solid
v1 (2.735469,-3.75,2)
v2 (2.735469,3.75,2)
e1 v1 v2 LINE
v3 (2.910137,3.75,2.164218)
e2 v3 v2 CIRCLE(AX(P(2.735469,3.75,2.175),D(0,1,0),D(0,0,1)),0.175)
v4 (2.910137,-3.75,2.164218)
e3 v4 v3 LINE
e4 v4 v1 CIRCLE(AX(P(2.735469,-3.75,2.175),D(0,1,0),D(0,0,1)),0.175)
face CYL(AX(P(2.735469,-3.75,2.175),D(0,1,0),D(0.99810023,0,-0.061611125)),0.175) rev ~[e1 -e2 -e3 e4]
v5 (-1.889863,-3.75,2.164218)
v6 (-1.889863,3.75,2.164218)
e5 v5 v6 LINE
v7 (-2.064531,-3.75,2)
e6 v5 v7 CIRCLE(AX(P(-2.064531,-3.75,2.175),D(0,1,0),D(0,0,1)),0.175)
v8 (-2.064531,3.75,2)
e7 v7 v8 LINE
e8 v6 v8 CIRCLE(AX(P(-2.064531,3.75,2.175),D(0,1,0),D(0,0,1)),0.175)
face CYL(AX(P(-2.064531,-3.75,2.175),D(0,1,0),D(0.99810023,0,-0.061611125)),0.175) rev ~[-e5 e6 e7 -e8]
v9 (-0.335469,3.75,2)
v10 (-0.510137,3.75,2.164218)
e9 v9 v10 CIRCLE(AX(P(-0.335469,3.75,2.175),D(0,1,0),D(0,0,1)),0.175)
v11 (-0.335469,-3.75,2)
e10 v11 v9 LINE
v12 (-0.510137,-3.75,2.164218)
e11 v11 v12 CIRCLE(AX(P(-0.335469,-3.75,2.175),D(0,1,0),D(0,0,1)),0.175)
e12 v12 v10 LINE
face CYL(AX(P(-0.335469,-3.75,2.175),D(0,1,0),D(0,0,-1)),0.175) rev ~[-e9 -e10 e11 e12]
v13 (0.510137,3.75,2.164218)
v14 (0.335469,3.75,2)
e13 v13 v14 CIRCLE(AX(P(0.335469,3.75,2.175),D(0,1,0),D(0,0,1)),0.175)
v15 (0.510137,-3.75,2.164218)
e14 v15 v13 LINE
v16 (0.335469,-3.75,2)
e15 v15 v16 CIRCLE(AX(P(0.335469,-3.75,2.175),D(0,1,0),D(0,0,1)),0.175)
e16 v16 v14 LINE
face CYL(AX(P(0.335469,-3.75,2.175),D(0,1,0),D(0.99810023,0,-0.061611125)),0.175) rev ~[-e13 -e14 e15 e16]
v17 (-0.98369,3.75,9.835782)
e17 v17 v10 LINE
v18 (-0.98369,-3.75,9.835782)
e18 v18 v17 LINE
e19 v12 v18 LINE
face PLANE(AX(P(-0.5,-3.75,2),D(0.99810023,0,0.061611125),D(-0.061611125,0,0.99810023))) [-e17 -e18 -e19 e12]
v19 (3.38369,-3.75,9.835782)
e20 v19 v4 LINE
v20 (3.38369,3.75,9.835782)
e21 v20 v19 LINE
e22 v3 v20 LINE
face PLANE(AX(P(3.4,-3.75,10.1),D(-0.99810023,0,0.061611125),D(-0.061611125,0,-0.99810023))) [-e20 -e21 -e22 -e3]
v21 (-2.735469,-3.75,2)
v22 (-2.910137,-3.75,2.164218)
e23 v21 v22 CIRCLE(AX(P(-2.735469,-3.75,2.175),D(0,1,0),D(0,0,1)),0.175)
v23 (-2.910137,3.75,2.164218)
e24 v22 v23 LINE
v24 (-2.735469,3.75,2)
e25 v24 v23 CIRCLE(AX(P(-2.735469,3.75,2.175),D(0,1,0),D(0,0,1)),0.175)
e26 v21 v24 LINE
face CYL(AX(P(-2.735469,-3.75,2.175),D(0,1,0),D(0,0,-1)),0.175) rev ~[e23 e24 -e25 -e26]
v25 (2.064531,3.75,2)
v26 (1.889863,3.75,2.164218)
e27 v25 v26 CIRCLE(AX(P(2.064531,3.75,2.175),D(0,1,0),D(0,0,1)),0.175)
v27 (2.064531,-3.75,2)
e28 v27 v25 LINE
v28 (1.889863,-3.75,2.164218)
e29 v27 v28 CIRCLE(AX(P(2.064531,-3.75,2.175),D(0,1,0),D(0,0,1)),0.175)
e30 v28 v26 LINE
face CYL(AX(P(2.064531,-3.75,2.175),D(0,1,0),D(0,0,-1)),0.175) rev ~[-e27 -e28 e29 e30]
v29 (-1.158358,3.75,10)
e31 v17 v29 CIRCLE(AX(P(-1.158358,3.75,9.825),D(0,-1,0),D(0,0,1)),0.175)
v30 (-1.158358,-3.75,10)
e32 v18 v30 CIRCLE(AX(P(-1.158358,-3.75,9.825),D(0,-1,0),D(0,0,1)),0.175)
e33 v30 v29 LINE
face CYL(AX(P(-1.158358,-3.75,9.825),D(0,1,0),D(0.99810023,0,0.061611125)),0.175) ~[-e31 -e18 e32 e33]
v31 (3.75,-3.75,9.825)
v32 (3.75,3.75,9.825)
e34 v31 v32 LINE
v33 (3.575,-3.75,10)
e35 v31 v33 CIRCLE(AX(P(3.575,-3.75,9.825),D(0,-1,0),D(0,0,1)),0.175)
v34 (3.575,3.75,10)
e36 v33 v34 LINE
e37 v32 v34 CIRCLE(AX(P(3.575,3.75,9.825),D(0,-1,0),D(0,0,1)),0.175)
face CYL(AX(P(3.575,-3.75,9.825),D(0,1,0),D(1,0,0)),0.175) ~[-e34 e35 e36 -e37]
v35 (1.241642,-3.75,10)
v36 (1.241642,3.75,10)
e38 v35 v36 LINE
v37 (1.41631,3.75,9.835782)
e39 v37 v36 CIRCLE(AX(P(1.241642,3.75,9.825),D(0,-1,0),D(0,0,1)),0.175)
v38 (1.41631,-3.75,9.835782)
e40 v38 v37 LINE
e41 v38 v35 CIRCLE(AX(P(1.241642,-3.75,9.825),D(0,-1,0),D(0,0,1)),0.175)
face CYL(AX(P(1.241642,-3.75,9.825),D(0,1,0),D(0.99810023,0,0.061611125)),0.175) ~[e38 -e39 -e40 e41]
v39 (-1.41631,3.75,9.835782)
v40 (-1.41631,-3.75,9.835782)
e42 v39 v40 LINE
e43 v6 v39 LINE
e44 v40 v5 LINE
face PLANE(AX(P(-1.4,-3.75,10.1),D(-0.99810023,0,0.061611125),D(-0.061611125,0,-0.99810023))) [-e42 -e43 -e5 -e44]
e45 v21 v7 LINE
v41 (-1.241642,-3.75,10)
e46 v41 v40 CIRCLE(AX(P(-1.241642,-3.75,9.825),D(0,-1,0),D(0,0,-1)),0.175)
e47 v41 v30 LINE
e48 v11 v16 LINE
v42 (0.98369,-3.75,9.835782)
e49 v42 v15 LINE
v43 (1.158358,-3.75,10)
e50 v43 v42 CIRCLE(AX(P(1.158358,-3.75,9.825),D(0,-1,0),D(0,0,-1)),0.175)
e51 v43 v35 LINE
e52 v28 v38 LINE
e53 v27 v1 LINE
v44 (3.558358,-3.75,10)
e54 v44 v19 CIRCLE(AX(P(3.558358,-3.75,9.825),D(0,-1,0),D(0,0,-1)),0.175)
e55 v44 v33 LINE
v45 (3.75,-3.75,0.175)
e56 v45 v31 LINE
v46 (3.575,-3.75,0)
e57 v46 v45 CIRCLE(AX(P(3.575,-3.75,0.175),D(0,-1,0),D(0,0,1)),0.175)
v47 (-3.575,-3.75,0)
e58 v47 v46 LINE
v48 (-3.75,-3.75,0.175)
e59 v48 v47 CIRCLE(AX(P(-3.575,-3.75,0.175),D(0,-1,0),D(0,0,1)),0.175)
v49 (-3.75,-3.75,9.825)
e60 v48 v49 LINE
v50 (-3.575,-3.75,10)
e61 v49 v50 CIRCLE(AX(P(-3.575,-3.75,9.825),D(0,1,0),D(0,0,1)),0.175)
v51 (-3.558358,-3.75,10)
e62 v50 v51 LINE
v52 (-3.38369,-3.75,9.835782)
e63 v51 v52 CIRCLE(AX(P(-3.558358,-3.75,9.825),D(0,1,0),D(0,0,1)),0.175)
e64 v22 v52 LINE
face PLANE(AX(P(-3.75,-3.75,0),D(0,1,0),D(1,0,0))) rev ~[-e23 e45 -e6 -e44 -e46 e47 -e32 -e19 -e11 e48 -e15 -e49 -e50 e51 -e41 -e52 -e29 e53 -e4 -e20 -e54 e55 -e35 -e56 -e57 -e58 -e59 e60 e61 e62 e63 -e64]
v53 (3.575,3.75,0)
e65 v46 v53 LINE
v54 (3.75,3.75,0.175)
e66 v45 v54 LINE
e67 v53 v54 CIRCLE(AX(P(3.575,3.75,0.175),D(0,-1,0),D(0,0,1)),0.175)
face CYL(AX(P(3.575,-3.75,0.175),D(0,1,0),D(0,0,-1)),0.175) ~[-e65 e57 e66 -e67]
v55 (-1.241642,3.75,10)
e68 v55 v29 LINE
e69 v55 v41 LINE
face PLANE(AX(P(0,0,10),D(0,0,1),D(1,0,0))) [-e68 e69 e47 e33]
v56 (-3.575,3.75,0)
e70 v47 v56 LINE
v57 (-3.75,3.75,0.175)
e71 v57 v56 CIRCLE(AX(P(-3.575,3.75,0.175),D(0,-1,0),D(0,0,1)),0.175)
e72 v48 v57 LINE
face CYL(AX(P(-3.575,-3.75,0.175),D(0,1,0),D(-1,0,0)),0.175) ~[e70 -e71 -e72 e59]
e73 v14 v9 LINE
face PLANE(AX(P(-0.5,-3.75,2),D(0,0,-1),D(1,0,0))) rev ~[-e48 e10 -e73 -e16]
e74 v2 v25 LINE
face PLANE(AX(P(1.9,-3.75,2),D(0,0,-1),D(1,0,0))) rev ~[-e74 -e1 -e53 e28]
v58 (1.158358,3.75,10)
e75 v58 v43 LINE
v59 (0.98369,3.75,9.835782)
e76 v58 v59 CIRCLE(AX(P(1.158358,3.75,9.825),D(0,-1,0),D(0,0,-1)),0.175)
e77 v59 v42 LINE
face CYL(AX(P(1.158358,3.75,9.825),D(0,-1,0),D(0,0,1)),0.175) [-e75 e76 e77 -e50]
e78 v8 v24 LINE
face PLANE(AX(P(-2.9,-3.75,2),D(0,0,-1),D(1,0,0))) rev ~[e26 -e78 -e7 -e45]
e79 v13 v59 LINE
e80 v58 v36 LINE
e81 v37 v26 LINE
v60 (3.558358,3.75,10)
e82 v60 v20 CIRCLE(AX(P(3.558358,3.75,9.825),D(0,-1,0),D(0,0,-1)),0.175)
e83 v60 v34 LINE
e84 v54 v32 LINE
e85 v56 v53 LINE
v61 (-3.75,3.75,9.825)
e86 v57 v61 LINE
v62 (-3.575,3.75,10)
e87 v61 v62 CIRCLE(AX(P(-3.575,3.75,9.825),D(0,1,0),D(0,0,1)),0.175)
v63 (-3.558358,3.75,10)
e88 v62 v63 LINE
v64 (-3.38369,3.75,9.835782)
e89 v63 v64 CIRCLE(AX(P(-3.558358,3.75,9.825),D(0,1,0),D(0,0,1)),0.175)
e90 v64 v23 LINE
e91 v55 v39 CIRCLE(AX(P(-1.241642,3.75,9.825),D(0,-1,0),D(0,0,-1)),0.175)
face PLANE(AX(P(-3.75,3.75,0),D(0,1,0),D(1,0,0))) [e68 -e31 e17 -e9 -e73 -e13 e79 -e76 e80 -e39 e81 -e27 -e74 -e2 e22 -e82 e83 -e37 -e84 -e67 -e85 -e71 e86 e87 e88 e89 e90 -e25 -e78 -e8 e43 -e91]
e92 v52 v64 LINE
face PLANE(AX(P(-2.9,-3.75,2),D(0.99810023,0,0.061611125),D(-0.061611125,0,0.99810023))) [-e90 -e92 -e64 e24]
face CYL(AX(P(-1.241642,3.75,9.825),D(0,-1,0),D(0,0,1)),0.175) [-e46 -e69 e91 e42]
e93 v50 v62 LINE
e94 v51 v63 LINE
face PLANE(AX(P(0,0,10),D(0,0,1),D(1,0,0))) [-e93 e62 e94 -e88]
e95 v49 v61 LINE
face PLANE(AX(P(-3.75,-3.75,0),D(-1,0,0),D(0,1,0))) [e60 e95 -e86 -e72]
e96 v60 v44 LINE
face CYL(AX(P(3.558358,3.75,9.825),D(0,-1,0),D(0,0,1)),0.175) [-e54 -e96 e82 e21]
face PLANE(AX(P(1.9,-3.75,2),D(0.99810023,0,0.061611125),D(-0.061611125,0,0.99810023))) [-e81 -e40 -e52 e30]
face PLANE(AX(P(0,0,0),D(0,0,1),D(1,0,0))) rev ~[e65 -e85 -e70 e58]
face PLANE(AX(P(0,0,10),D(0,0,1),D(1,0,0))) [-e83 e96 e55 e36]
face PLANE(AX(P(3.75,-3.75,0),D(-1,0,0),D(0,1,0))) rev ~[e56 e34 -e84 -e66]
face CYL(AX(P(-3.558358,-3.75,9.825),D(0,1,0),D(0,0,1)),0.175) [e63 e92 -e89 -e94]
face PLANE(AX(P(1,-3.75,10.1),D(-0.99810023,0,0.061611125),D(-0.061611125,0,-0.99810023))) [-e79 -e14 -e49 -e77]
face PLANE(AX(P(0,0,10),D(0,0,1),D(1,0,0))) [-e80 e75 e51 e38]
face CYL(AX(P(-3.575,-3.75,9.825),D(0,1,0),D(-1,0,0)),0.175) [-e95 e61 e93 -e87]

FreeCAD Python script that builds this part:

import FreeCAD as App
import Part
import Sketcher
from FreeCAD import Vector
Q = App.Units.Quantity


def edges_at(feature, points):
    """Names of the edges that pass closest to the given points."""
    edges = feature.Shape.Edges
    near = lambda p: min(range(len(edges)), key=lambda i: edges[i].distToShape(Part.Vertex(*p))[0])
    return sorted({f"Edge{near(p) + 1}" for p in points})


def add_polygon(sketch, points):
    """Adds a closed chain of lines whose ends are joined by coincident constraints."""
    first, n = sketch.GeometryCount, len(points)
    for a, b in zip(points, points[1:] + points[:1]):
        sketch.addGeometry(Part.LineSegment(App.Vector(*a, 0), App.Vector(*b, 0)), False)
    for i in range(n):
        sketch.addConstraint(Sketcher.Constraint("Coincident", first + i, 2, first + (i + 1) % n, 1))

doc = App.newDocument("Part")
body = doc.addObject("PartDesign::Body", "Body")

# Sketch on XY plane
sketch1 = body.newObject("Sketcher::SketchObject", "Sketch")
sketch1.AttachmentSupport = (doc.getObject("XY_Plane"), [""])
sketch1.MapMode = "FlatFace"
add_polygon(sketch1, [(-3.75, 3.75), (-3.75, -3.75), (3.75, -3.75), (3.75, 3.75)])  # lines 0-3
sketch1.addConstraint([
    Sketcher.Constraint("Vertical", 0),
    Sketcher.Constraint("Horizontal", 1),
    Sketcher.Constraint("Vertical", 2),
    Sketcher.Constraint("Horizontal", 3),
    Sketcher.Constraint("Symmetric", 0, 2, 2, 2, -1, 1),
    Sketcher.Constraint("Equal", 3, 0),
    Sketcher.Constraint("DistanceX", 1, 1, 1, 2, Q("7.5 mm")),
])
pad1 = body.newObject("PartDesign::Pad", "Pad")
pad1.Profile = sketch1
pad1.Length = 10

# Sketch on XZ plane
sketch2 = body.newObject("Sketcher::SketchObject", "Sketch001")
sketch2.AttachmentSupport = (doc.getObject("XZ_Plane"), [""])
sketch2.MapMode = "FlatFace"
sketch2.AttachmentOffset = App.Placement(Vector(0, 0, 3.75), App.Rotation())
add_polygon(sketch2, [(1, 10.1), (-1, 10.1), (-0.5, 2), (0.5, 2)])  # lines 0-3
sketch2.addConstraint([
    Sketcher.Constraint("Horizontal", 0),
    Sketcher.Constraint("Horizontal", 2),
    Sketcher.Constraint("Equal", 1, 3),
    Sketcher.Constraint("DistanceX", 0, 2, 0, 1, Q("2 mm")),
    Sketcher.Constraint("DistanceX", 2, 1, 2, 2, Q("1 mm")),
    Sketcher.Constraint("DistanceX", 0, 2, -1, 1, Q("1 mm")),
    Sketcher.Constraint("DistanceY", -1, 1, 1, 2, Q("2 mm")),
    Sketcher.Constraint("DistanceY", -1, 1, 0, 2, Q("10.1 mm")),
])
pocket1 = body.newObject("PartDesign::Pocket", "Pocket")
pocket1.Profile = sketch2
pocket1.Type = "ThroughAll"
doc.recompute()

linearpattern = body.newObject("PartDesign::LinearPattern", "LinearPattern")
linearpattern.Originals = [pocket1]
linearpattern.Direction = (doc.getObject("X_Axis"), [""])
linearpattern.Mode = "offset"
linearpattern.Offset = 2.4
linearpattern.Occurrences = 2
body.Tip = linearpattern
doc.recompute()

linearpattern2 = body.newObject("PartDesign::LinearPattern", "LinearPattern001")
linearpattern2.Originals = [pocket1]
linearpattern2.Direction = (doc.getObject("X_Axis"), [""])
linearpattern2.Mode = "offset"
linearpattern2.Offset = 2.4
linearpattern2.Occurrences = 2
linearpattern2.Reversed = True
body.Tip = linearpattern2
doc.recompute()

fillet = body.newObject("PartDesign::Fillet", "Fillet")
fillet.Base = (linearpattern2, edges_at(linearpattern2, [
    (-3.75, 0, 10),
    (-3.394, 0, 10),
    (-1.406, 0, 10),
    (-0.994, 0, 10),
    (0.994, 0, 10),
    (1.406, 0, 10),
    (3.394, 0, 10),
    (3.75, 0, 10),
    (-2.9, 0, 2),
    (-0.5, 0, 2),
    (1.9, 0, 2),
    (3.75, 0, 0),
    (-3.75, 0, 0),
    (-1.9, 0, 2),
    (0.5, 0, 2),
    (2.9, 0, 2),
]))
fillet.Radius = 0.175

doc.recompute()
